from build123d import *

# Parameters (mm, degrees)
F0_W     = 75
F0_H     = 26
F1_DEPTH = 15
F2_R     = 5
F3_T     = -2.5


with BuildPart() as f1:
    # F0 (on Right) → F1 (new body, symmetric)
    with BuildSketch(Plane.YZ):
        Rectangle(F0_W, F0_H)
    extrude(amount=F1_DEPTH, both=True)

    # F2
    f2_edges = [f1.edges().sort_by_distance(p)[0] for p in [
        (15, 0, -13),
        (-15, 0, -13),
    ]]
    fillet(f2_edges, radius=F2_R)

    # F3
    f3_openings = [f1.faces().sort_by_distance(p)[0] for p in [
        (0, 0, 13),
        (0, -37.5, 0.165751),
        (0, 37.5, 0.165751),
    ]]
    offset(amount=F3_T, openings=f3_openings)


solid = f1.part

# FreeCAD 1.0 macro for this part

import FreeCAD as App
import Part
import Sketcher
Q = App.Units.Quantity


def edges_at(feature, points):
    """Names of the edges that pass closest to the given points."""
    edges = feature.Shape.Edges
    near = lambda p: min(range(len(edges)), key=lambda i: edges[i].distToShape(Part.Vertex(*p))[0])
    return sorted({f"Edge{near(p) + 1}" for p in points})


def faces_at(feature, points):
    """Names of the faces that lie closest to the given points."""
    faces = feature.Shape.Faces
    near = lambda p: min(range(len(faces)), key=lambda i: faces[i].distToShape(Part.Vertex(*p))[0])
    return sorted({f"Face{near(p) + 1}" for p in points})

doc = App.newDocument("Part")
params = doc.addObject("Spreadsheet::Sheet", "Params")
for row, (alias, value) in enumerate([
    ("sketch1_width", "75 mm"),
    ("sketch1_height", "26 mm"),
    ("pad1_length", "30 mm"),
    ("fillet_radius", "5 mm"),
    ("thickness_wall", "2.5 mm"),
], start=1):
    params.set(f"A{row}", alias)
    params.set(f"B{row}", "=" + value)
    params.setAlias(f"B{row}", alias)

body = doc.addObject("PartDesign::Body", "Body")

# Sketch on YZ plane
sketch1 = body.newObject("Sketcher::SketchObject", "Sketch")
sketch1.AttachmentSupport = (doc.getObject("YZ_Plane"), [""])
sketch1.MapMode = "FlatFace"
sketch1.addGeometry([
    Part.LineSegment(App.Vector(-38, 13, 0), App.Vector(-38, -13, 0)),
    Part.LineSegment(App.Vector(-38, -13, 0), App.Vector(38, -13, 0)),
    Part.LineSegment(App.Vector(38, -13, 0), App.Vector(38, 13, 0)),
    Part.LineSegment(App.Vector(38, 13, 0), App.Vector(-38, 13, 0)),
], False)
sketch1.addConstraint([
    Sketcher.Constraint("Coincident", 0, 2, 1, 1),
    Sketcher.Constraint("Coincident", 1, 2, 2, 1),
    Sketcher.Constraint("Coincident", 2, 2, 3, 1),
    Sketcher.Constraint("Coincident", 3, 2, 0, 1),
    Sketcher.Constraint("Vertical", 0),
    Sketcher.Constraint("Horizontal", 1),
    Sketcher.Constraint("Vertical", 2),
    Sketcher.Constraint("Horizontal", 3),
    Sketcher.Constraint("Symmetric", 0, 2, 2, 2, -1, 1),
    Sketcher.Constraint("DistanceX", 1, 1, 1, 2, Q("75 mm")),
    Sketcher.Constraint("DistanceY", 0, 2, 0, 1, Q("26 mm")),
])
sketch1.setExpression("Constraints[9]", "Params.sketch1_width")
sketch1.setExpression("Constraints[10]", "Params.sketch1_height")
pad1 = body.newObject("PartDesign::Pad", "Pad")
pad1.Profile = sketch1
pad1.setExpression("Length", "Params.pad1_length")
pad1.Midplane = True
doc.recompute()

fillet = body.newObject("PartDesign::Fillet", "Fillet")
fillet.Base = (pad1, edges_at(pad1, [(15, 0, -13), (-15, 0, -13)]))
fillet.setExpression("Radius", "Params.fillet_radius")
doc.recompute()

thickness = body.newObject("PartDesign::Thickness", "Thickness")
thickness.Base = (fillet, faces_at(fillet, [(0, 0, 13), (0, -37.5, 0), (0, 37.5, 0)]))
thickness.setExpression("Value", "Params.thickness_wall")
thickness.Reversed = True
thickness.Join = "Arc"

doc.recompute()
